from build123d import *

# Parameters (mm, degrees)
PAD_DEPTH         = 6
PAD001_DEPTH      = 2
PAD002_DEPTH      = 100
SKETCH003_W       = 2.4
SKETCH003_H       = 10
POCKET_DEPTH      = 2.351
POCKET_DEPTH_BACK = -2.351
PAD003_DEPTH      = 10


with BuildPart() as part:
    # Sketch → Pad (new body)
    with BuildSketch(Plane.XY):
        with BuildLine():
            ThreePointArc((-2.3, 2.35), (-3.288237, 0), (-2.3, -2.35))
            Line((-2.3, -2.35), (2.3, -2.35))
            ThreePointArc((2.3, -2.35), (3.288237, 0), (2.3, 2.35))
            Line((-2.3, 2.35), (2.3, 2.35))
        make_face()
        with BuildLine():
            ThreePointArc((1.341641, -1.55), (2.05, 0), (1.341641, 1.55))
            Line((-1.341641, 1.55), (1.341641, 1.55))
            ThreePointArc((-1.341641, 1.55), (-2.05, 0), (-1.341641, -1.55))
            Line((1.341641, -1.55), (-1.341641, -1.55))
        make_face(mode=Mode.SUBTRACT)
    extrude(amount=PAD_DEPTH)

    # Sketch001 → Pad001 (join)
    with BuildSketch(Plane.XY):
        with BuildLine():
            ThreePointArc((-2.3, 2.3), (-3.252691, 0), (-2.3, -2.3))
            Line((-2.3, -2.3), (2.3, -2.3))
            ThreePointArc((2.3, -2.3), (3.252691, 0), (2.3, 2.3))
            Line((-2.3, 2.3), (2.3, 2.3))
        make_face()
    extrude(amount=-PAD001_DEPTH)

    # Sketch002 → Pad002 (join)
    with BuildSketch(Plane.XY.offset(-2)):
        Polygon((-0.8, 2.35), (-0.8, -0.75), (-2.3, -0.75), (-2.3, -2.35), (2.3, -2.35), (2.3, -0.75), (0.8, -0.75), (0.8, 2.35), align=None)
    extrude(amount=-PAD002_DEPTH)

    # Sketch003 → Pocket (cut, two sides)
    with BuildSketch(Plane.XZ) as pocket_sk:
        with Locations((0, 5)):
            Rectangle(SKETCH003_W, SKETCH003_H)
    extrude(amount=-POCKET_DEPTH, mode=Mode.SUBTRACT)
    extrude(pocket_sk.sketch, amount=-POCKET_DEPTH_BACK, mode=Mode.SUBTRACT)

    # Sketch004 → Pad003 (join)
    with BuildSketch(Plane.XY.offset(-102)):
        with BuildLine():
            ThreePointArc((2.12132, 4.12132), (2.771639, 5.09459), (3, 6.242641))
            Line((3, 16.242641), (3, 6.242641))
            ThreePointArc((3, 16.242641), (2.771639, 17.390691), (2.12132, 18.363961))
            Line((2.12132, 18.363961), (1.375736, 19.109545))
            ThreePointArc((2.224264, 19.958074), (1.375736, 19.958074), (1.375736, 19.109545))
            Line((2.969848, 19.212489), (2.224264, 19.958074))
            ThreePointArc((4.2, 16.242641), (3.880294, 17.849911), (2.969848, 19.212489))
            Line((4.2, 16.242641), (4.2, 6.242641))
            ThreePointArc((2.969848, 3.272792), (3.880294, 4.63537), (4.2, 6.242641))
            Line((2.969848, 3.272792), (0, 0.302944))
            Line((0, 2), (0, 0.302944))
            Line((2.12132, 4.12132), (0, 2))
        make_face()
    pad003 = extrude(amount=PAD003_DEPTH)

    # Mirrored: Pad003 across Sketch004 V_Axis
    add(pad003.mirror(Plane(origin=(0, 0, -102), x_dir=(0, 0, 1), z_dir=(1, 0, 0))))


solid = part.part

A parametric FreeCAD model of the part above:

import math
import FreeCAD as App
import Part
import Sketcher
from FreeCAD import Vector
Q = App.Units.Quantity


def add_polygon(sketch, points):
    """Adds a closed chain of lines whose ends are joined by coincident constraints."""
    first, n = sketch.GeometryCount, len(points)
    for a, b in zip(points, points[1:] + points[:1]):
        sketch.addGeometry(Part.LineSegment(App.Vector(*a, 0), App.Vector(*b, 0)), False)
    for i in range(n):
        sketch.addConstraint(Sketcher.Constraint("Coincident", first + i, 2, first + (i + 1) % n, 1))

doc = App.newDocument("Part")
body = doc.addObject("PartDesign::Body", "Body")

# Sketch on XY plane
sketch1 = body.newObject("Sketcher::SketchObject", "Sketch")
sketch1.AttachmentSupport = (doc.getObject("XY_Plane"), [""])
sketch1.MapMode = "FlatFace"
sketch1.addGeometry([
    Part.ArcOfCircle(Part.Circle(Vector(-0.000001, 0, 0), Vector(0, 0, 1), 3.288236), math.radians(134.383924), math.radians(225.616076)),  # 0
    Part.LineSegment(Vector(-2.3, -2.35, 0), Vector(2.3, -2.35, 0)),  # 1
    Part.ArcOfCircle(Part.Circle(Vector(0.000001, 0, 0), Vector(0, 0, 1), 3.288236), math.radians(-45.616076), math.radians(45.616076)),  # 2
    Part.LineSegment(Vector(2.3, 2.35, 0), Vector(-2.3, 2.35, 0)),  # 3
    Part.ArcOfCircle(Part.Circle(Vector(0, 0, 0), Vector(0, 0, 1), 2.05), math.radians(-49.121352), math.radians(49.121352)),  # 4
    Part.LineSegment(Vector(1.341641, -1.55, 0), Vector(-1.341641, -1.55, 0)),  # 5
    Part.ArcOfCircle(Part.Circle(Vector(0, 0, 0), Vector(0, 0, 1), 2.05), math.radians(130.878648), math.radians(229.121352)),  # 6
    Part.LineSegment(Vector(-1.341641, 1.55, 0), Vector(1.341641, 1.55, 0)),  # 7
], False)
sketch1.addConstraint([
    Sketcher.Constraint("Coincident", 0, 2, 1, 1),
    Sketcher.Constraint("Coincident", 1, 2, 2, 1),
    Sketcher.Constraint("Coincident", 2, 2, 3, 1),
    Sketcher.Constraint("Coincident", 3, 2, 0, 1),
    Sketcher.Constraint("Coincident", 4, 1, 5, 1),
    Sketcher.Constraint("Coincident", 5, 2, 6, 2),
    Sketcher.Constraint("Coincident", 6, 1, 7, 1),
    Sketcher.Constraint("Coincident", 7, 2, 4, 2),
    Sketcher.Constraint("Horizontal", 1),
    Sketcher.Constraint("Horizontal", 3),
    Sketcher.Constraint("Horizontal", 5),
    Sketcher.Constraint("Horizontal", 7),
    Sketcher.Constraint("Coincident", 0, 3, -1, 1),
    Sketcher.Constraint("Coincident", 2, 3, -1, 1),
    Sketcher.Constraint("Coincident", 4, 3, -1, 1),
    Sketcher.Constraint("Coincident", 6, 3, -1, 1),
    Sketcher.Constraint("Equal", 0, 2),
    Sketcher.Constraint("Equal", 4, 6),
    Sketcher.Constraint("Vertical", 1, 2, 2, 2),
    Sketcher.Constraint("Vertical", 5, 2, 6, 1),
    Sketcher.Constraint("Radius", 4, Q("2.05 mm")),
    Sketcher.Constraint("DistanceX", 1, 1, 1, 2, Q("4.6 mm")),
    Sketcher.Constraint("DistanceY", 1, 2, 2, 2, Q("4.7 mm")),
    Sketcher.Constraint("DistanceY", 1, 2, 4, 1, Q("0.8 mm")),
])
pad1 = body.newObject("PartDesign::Pad", "Pad")
pad1.Profile = sketch1
pad1.Length = 6

# Sketch on XY plane
sketch2 = body.newObject("Sketcher::SketchObject", "Sketch001")
sketch2.AttachmentSupport = (doc.getObject("XY_Plane"), [""])
sketch2.MapMode = "FlatFace"
sketch2.addGeometry([
    Part.ArcOfCircle(Part.Circle(Vector(0.000001, 0, 0), Vector(0, 0, 1), 3.252692), math.radians(135.000008), math.radians(224.999992)),
    Part.LineSegment(Vector(-2.3, -2.3, 0), Vector(2.3, -2.3, 0)),
    Part.ArcOfCircle(Part.Circle(Vector(-0.000001, 0, 0), Vector(0, 0, 1), 3.252692), math.radians(-44.999992), math.radians(44.999992)),
    Part.LineSegment(Vector(2.3, 2.3, 0), Vector(-2.3, 2.3, 0)),
], False)
sketch2.addConstraint([
    Sketcher.Constraint("Coincident", 0, 2, 1, 1),
    Sketcher.Constraint("Coincident", 1, 2, 2, 1),
    Sketcher.Constraint("Coincident", 2, 2, 3, 1),
    Sketcher.Constraint("Coincident", 3, 2, 0, 1),
    Sketcher.Constraint("Horizontal", 1),
    Sketcher.Constraint("Horizontal", 3),
    Sketcher.Constraint("Coincident", 0, 3, -1, 1),
    Sketcher.Constraint("Coincident", 2, 3, -1, 1),
    Sketcher.Constraint("Equal", 0, 2),
    Sketcher.Constraint("Vertical", 1, 2, 2, 2),
    Sketcher.Constraint("DistanceX", 1, 1, 1, 2, Q("4.6 mm")),
    Sketcher.Constraint("DistanceY", 0, 2, -1, 1, Q("2.3 mm")),
])
pad2 = body.newObject("PartDesign::Pad", "Pad001")
pad2.Profile = sketch2
pad2.Length = 2
pad2.Reversed = True

# Sketch on XY plane
sketch3 = body.newObject("Sketcher::SketchObject", "Sketch002")
sketch3.AttachmentSupport = (doc.getObject("XY_Plane"), [""])
sketch3.MapMode = "FlatFace"
sketch3.AttachmentOffset = App.Placement(Vector(0, 0, -2), App.Rotation())
add_polygon(sketch3, [(-0.8, 2.35), (-0.8, -0.75), (-2.3, -0.75), (-2.3, -2.35), (2.3, -2.35), (2.3, -0.75), (0.8, -0.75), (0.8, 2.35)])  # lines 0-7
sketch3.addConstraint([
    Sketcher.Constraint("Vertical", 0),
    Sketcher.Constraint("Horizontal", 1),
    Sketcher.Constraint("Vertical", 2),
    Sketcher.Constraint("Horizontal", 3),
    Sketcher.Constraint("Vertical", 4),
    Sketcher.Constraint("Horizontal", 5),
    Sketcher.Constraint("Vertical", 6),
    Sketcher.Constraint("Horizontal", 7),
    Sketcher.Constraint("Symmetric", 1, 2, 4, 2, -2),
    Sketcher.Constraint("Equal", 1, 5),
    Sketcher.Constraint("Equal", 7, 2),
    Sketcher.Constraint("DistanceX", 1, 2, 1, 1, Q("1.5 mm")),
    Sketcher.Constraint("DistanceX", 3, 1, 3, 2, Q("4.6 mm")),
    Sketcher.Constraint("DistanceY", 0, 2, 0, 1, Q("3.1 mm")),
    Sketcher.Constraint("DistanceY", 0, 2, -1, 1, Q("0.75 mm")),
])
pad3 = body.newObject("PartDesign::Pad", "Pad002")
pad3.Profile = sketch3
pad3.Length = 100
pad3.Reversed = True

# Sketch on XZ plane
sketch4 = body.newObject("Sketcher::SketchObject", "Sketch003")
sketch4.AttachmentSupport = (doc.getObject("XZ_Plane"), [""])
sketch4.MapMode = "FlatFace"
add_polygon(sketch4, [(-1.2, 10), (-1.2, 0), (1.2, 0), (1.2, 10)])  # lines 0-3
sketch4.addConstraint([
    Sketcher.Constraint("Vertical", 0),
    Sketcher.Constraint("Horizontal", 1),
    Sketcher.Constraint("Vertical", 2),
    Sketcher.Constraint("Horizontal", 3),
    Sketcher.Constraint("Symmetric", 0, 2, 1, 2, -1, 1),
    Sketcher.Constraint("DistanceY", 0, 2, 0, 1, Q("10 mm")),
    Sketcher.Constraint("DistanceX", 1, 1, 1, 2, Q("2.4 mm")),
])
pocket1 = body.newObject("PartDesign::Pocket", "Pocket")
pocket1.Profile = sketch4
pocket1.Type = "ThroughAll"
pocket1.Midplane = True

# Sketch on XY plane
sketch5 = body.newObject("Sketcher::SketchObject", "Sketch004")
sketch5.AttachmentSupport = (doc.getObject("XY_Plane"), [""])
sketch5.MapMode = "FlatFace"
sketch5.AttachmentOffset = App.Placement(Vector(0, 0, -102), App.Rotation())
sketch5.addGeometry([
    Part.ArcOfCircle(Part.Circle(Vector(0.000006, 6.242638, 0), Vector(0, 0, 1), 2.999994), math.radians(-45.000059), math.radians(0.000056)),  # 0
    Part.LineSegment(Vector(2.12132, 4.12132, 0), Vector(0, 2, 0)),  # 1
    Part.LineSegment(Vector(0, 2, 0), Vector(0, 0.302944, 0)),  # 2
    Part.LineSegment(Vector(0, 0.302944, 0), Vector(2.969848, 3.272792, 0)),  # 3
    Part.ArcOfCircle(Part.Circle(Vector(0.000002, 6.24264, 0), Vector(0, 0, 1), 4.199998), math.radians(-45.000021), math.radians(0.000013)),  # 4
    Part.LineSegment(Vector(4.2, 6.242641, 0), Vector(4.2, 16.242641, 0)),  # 5
    Part.ArcOfCircle(Part.Circle(Vector(0.000002, 16.242641, 0), Vector(0, 0, 1), 4.199998), math.radians(0.000001), math.radians(45.000021)),  # 6
    Part.LineSegment(Vector(2.969848, 19.212489, 0), Vector(2.224264, 19.958074, 0)),  # 7
    Part.ArcOfCircle(Part.Circle(Vector(1.8, 19.53381, 0), Vector(0, 0, 1), 0.6), math.radians(45.000034), math.radians(225.000034)),  # 8
    Part.LineSegment(Vector(1.375736, 19.109545, 0), Vector(2.12132, 18.363961, 0)),  # 9
    Part.ArcOfCircle(Part.Circle(Vector(0.000006, 16.242643, 0), Vector(0, 0, 1), 2.999994), math.radians(-0.000037), math.radians(45.000059)),  # 10
    Part.LineSegment(Vector(3, 16.242641, 0), Vector(3, 6.242641, 0)),  # 11
], False)
sketch5.addConstraint([
    Sketcher.Constraint("Tangent", 0, 1, 1, 1),
    Sketcher.Constraint("Coincident", 1, 2, 2, 1),
    Sketcher.Constraint("Coincident", 2, 2, 3, 1),
    Sketcher.Constraint("Tangent", 3, 2, 4, 1),
    Sketcher.Constraint("Tangent", 4, 2, 5, 1),
    Sketcher.Constraint("Tangent", 5, 2, 6, 1),
    Sketcher.Constraint("Tangent", 6, 2, 7, 1),
    Sketcher.Constraint("Tangent", 7, 2, 8, 1),
    Sketcher.Constraint("Tangent", 8, 2, 9, 1),
    Sketcher.Constraint("Tangent", 9, 2, 10, 2),
    Sketcher.Constraint("Tangent", 10, 1, 11, 1),
    Sketcher.Constraint("Tangent", 11, 2, 0, 2),
    Sketcher.Constraint("Vertical", 2),
    Sketcher.Constraint("Vertical", 5),
    Sketcher.Constraint("Vertical", 11),
    Sketcher.Constraint("Coincident", 4, 3, 0, 3),
    Sketcher.Constraint("Coincident", 10, 3, 6, 3),
    Sketcher.Constraint("Equal", 4, 6),
    Sketcher.Constraint("PointOnObject", 1, 2, -2),
    Sketcher.Constraint("Parallel", 1, 3),
    Sketcher.Constraint("Perpendicular", 3, 7),
    Sketcher.Constraint("Parallel", 7, 9),
    Sketcher.Constraint("Vertical", 3, 2, 6, 2),
    Sketcher.Constraint("Radius", 8, Q("0.6 mm")),
    Sketcher.Constraint("DistanceY", 5, 1, 5, 2, Q("10 mm")),
    Sketcher.Constraint("Distance", 1, Q("3 mm")),
    Sketcher.Constraint("DistanceY", -1, 1, 1, 2, Q("2 mm")),
    Sketcher.Constraint("DistanceX", -1, 1, 10, 1, Q("3 mm")),
    Sketcher.Constraint("DistanceX", -1, 1, 8, 3, Q("1.8 mm")),
])
pad4 = body.newObject("PartDesign::Pad", "Pad003")
pad4.Profile = sketch5
pad4.Length = 10
doc.recompute()

mirrored = body.newObject("PartDesign::Mirrored", "Mirrored")
mirrored.Originals = [pad4]
mirrored.MirrorPlane = (doc.getObject("YZ_Plane"), [""])
body.Tip = mirrored

doc.recompute()
